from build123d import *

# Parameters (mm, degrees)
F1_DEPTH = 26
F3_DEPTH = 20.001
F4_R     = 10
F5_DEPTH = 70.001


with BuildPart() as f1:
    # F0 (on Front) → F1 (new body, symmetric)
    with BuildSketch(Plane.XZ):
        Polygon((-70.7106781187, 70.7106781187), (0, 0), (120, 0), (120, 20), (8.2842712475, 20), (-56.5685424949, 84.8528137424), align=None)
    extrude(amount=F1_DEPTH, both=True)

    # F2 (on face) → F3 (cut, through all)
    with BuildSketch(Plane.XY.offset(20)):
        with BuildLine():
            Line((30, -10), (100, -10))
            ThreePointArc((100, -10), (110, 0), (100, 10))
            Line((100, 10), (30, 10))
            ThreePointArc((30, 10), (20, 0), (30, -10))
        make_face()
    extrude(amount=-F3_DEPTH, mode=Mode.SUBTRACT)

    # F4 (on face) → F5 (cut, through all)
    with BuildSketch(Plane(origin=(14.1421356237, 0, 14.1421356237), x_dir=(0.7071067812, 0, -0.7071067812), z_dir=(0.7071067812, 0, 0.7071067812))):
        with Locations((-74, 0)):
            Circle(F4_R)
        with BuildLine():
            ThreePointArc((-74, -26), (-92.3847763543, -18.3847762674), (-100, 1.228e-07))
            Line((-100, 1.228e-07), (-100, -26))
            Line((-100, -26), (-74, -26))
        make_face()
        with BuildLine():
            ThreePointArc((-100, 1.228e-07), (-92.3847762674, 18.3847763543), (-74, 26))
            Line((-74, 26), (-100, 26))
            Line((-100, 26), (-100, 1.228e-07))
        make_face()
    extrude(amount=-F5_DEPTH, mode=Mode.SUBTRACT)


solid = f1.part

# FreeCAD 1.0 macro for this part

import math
import FreeCAD as App
import Part
import Sketcher
Q = App.Units.Quantity


def add_polygon(sketch, points):
    """Adds a closed chain of lines whose ends are joined by coincident constraints."""
    first, n = sketch.GeometryCount, len(points)
    for a, b in zip(points, points[1:] + points[:1]):
        sketch.addGeometry(Part.LineSegment(App.Vector(*a, 0), App.Vector(*b, 0)), False)
    for i in range(n):
        sketch.addConstraint(Sketcher.Constraint("Coincident", first + i, 2, first + (i + 1) % n, 1))

doc = App.newDocument("Part")
params = doc.addObject("Spreadsheet::Sheet", "Params")
for row, (alias, value) in enumerate([
    ("sketch1_width", "120 mm"),
    ("sketch1_height", "20 mm"),
    ("sketch1_length", "100 mm"),
    ("sketch1_length2", "20 mm"),
    ("pad1_length", "52 mm"),
    ("sketch2_radius", "10 mm"),
    ("sketch2_width", "70 mm"),
    ("sketch3_diameter", "20 mm"),
    ("sketch3_radius", "26 mm"),
], start=1):
    params.set(f"A{row}", alias)
    params.set(f"B{row}", "=" + value)
    params.setAlias(f"B{row}", alias)

body = doc.addObject("PartDesign::Body", "Body")

sketch1 = body.newObject("Sketcher::SketchObject", "Sketch")
sketch1.AttachmentSupport = (doc.getObject("XZ_Plane"), [""])
sketch1.MapMode = "FlatFace"
add_polygon(sketch1, [(-70.710678, 70.710678), (0, 0), (120, 0), (120, 20), (8.284271, 20), (-56.568542, 84.852814)])
sketch1.addConstraint(Sketcher.Constraint("Horizontal", 1))
sketch1.addConstraint(Sketcher.Constraint("Vertical", 2))
sketch1.addConstraint(Sketcher.Constraint("Horizontal", 3))
sketch1.addConstraint(Sketcher.Constraint("Coincident", 0, 2, -1, 1))
sketch1.addConstraint(Sketcher.Constraint("Parallel", 0, 4))
sketch1.addConstraint(Sketcher.Constraint("Perpendicular", 4, 5))
sketch1.addConstraint(Sketcher.Constraint("DistanceX", 1, 1, 1, 2, Q("120 mm")))
sketch1.addConstraint(Sketcher.Constraint("DistanceY", 2, 1, 2, 2, Q("20 mm")))
sketch1.addConstraint(Sketcher.Constraint("Angle", 0, Q("-45 deg")))
sketch1.addConstraint(Sketcher.Constraint("Distance", 0, Q("100 mm")))
sketch1.addConstraint(Sketcher.Constraint("Distance", 5, Q("20 mm")))
sketch1.setExpression("Constraints[12]", "Params.sketch1_width")
sketch1.setExpression("Constraints[13]", "Params.sketch1_height")
sketch1.setExpression("Constraints[15]", "Params.sketch1_length")
sketch1.setExpression("Constraints[16]", "Params.sketch1_length2")
pad1 = body.newObject("PartDesign::Pad", "Pad")
pad1.Profile = sketch1
pad1.setExpression("Length", "Params.pad1_length")
pad1.Midplane = True

sketch2 = body.newObject("Sketcher::SketchObject", "Sketch001")
sketch2.AttachmentSupport = (doc.getObject("XY_Plane"), [""])
sketch2.MapMode = "FlatFace"
sketch2.AttachmentOffset = App.Placement(App.Vector(0, 0, 20), App.Rotation())
sketch2.addGeometry(Part.LineSegment(App.Vector(30, -10, 0), App.Vector(100, -10, 0)), False)
sketch2.addGeometry(Part.ArcOfCircle(Part.Circle(App.Vector(100, 0, 0), App.Vector(0, 0, 1), 10), math.radians(-90), math.radians(90)), False)
sketch2.addGeometry(Part.LineSegment(App.Vector(100, 10, 0), App.Vector(30, 10, 0)), False)
sketch2.addGeometry(Part.ArcOfCircle(Part.Circle(App.Vector(30, 0, 0), App.Vector(0, 0, 1), 10), math.radians(90), math.radians(270)), False)
sketch2.addConstraint(Sketcher.Constraint("Tangent", 0, 2, 1, 1))
sketch2.addConstraint(Sketcher.Constraint("Tangent", 1, 2, 2, 1))
sketch2.addConstraint(Sketcher.Constraint("Tangent", 2, 2, 3, 1))
sketch2.addConstraint(Sketcher.Constraint("Tangent", 3, 2, 0, 1))
sketch2.addConstraint(Sketcher.Constraint("Horizontal", 0))
sketch2.addConstraint(Sketcher.Constraint("Horizontal", 2))
sketch2.addConstraint(Sketcher.Constraint("PointOnObject", 1, 3, -1))
sketch2.addConstraint(Sketcher.Constraint("Radius", 1, Q("10 mm")))
sketch2.addConstraint(Sketcher.Constraint("DistanceX", 0, 1, 0, 2, Q("70 mm")))
sketch2.addConstraint(Sketcher.Constraint("DistanceX", -1, 1, 1, 3, Q("100 mm")))
sketch2.setExpression("Constraints[7]", "Params.sketch2_radius")
sketch2.setExpression("Constraints[8]", "Params.sketch2_width")
pocket1 = body.newObject("PartDesign::Pocket", "Pocket")
pocket1.Profile = sketch2
pocket1.Type = "ThroughAll"

sketch3 = body.newObject("Sketcher::SketchObject", "Sketch002")
sketch3.Placement = App.Placement(App.Vector(14.142136, 0, 14.142136), App.Rotation(App.Vector(0.707106781, 0, -0.707106781), App.Vector(0, 0.999999999, 0), App.Vector(0.707106781, 0, 0.707106781), "ZXY"))
sketch3.addGeometry(Part.Circle(App.Vector(-74, 0, 0), App.Vector(0, 0, 1), 10), False)
sketch3.addGeometry(Part.ArcOfCircle(Part.Circle(App.Vector(-74, 0, 0), App.Vector(0, 0, 1), 26), math.radians(180), math.radians(270)), False)
sketch3.addGeometry(Part.LineSegment(App.Vector(-100, 0, 0), App.Vector(-100, -26, 0)), False)
sketch3.addGeometry(Part.LineSegment(App.Vector(-100, -26, 0), App.Vector(-74, -26, 0)), False)
sketch3.addGeometry(Part.ArcOfCircle(Part.Circle(App.Vector(-74, 0, 0), App.Vector(0, 0, 1), 26), math.radians(90), math.radians(180)), False)
sketch3.addGeometry(Part.LineSegment(App.Vector(-74, 26, 0), App.Vector(-100, 26, 0)), False)
sketch3.addGeometry(Part.LineSegment(App.Vector(-100, 26, 0), App.Vector(-100, 0, 0)), False)
sketch3.addConstraint(Sketcher.Constraint("Tangent", 1, 1, 2, 1))
sketch3.addConstraint(Sketcher.Constraint("Coincident", 2, 2, 3, 1))
sketch3.addConstraint(Sketcher.Constraint("Tangent", 3, 2, 1, 2))
sketch3.addConstraint(Sketcher.Constraint("Tangent", 4, 1, 5, 1))
sketch3.addConstraint(Sketcher.Constraint("Coincident", 5, 2, 6, 1))
sketch3.addConstraint(Sketcher.Constraint("Tangent", 6, 2, 4, 2))
sketch3.addConstraint(Sketcher.Constraint("Vertical", 2))
sketch3.addConstraint(Sketcher.Constraint("Horizontal", 3))
sketch3.addConstraint(Sketcher.Constraint("Horizontal", 5))
sketch3.addConstraint(Sketcher.Constraint("Vertical", 6))
sketch3.addConstraint(Sketcher.Constraint("Coincident", 1, 3, 0, 3))
sketch3.addConstraint(Sketcher.Constraint("Coincident", 4, 3, 0, 3))
sketch3.addConstraint(Sketcher.Constraint("Equal", 1, 4))
sketch3.addConstraint(Sketcher.Constraint("PointOnObject", 0, 3, -1))
sketch3.addConstraint(Sketcher.Constraint("Diameter", 0, Q("20 mm")))
sketch3.addConstraint(Sketcher.Constraint("Radius", 1, Q("26 mm")))
sketch3.addConstraint(Sketcher.Constraint("DistanceX", 0, 3, -1, 1, Q("74 mm")))
sketch3.setExpression("Constraints[14]", "Params.sketch3_diameter")
sketch3.setExpression("Constraints[15]", "Params.sketch3_radius")
pocket2 = body.newObject("PartDesign::Pocket", "Pocket001")
pocket2.Profile = sketch3
pocket2.Type = "ThroughAll"

doc.recompute()
